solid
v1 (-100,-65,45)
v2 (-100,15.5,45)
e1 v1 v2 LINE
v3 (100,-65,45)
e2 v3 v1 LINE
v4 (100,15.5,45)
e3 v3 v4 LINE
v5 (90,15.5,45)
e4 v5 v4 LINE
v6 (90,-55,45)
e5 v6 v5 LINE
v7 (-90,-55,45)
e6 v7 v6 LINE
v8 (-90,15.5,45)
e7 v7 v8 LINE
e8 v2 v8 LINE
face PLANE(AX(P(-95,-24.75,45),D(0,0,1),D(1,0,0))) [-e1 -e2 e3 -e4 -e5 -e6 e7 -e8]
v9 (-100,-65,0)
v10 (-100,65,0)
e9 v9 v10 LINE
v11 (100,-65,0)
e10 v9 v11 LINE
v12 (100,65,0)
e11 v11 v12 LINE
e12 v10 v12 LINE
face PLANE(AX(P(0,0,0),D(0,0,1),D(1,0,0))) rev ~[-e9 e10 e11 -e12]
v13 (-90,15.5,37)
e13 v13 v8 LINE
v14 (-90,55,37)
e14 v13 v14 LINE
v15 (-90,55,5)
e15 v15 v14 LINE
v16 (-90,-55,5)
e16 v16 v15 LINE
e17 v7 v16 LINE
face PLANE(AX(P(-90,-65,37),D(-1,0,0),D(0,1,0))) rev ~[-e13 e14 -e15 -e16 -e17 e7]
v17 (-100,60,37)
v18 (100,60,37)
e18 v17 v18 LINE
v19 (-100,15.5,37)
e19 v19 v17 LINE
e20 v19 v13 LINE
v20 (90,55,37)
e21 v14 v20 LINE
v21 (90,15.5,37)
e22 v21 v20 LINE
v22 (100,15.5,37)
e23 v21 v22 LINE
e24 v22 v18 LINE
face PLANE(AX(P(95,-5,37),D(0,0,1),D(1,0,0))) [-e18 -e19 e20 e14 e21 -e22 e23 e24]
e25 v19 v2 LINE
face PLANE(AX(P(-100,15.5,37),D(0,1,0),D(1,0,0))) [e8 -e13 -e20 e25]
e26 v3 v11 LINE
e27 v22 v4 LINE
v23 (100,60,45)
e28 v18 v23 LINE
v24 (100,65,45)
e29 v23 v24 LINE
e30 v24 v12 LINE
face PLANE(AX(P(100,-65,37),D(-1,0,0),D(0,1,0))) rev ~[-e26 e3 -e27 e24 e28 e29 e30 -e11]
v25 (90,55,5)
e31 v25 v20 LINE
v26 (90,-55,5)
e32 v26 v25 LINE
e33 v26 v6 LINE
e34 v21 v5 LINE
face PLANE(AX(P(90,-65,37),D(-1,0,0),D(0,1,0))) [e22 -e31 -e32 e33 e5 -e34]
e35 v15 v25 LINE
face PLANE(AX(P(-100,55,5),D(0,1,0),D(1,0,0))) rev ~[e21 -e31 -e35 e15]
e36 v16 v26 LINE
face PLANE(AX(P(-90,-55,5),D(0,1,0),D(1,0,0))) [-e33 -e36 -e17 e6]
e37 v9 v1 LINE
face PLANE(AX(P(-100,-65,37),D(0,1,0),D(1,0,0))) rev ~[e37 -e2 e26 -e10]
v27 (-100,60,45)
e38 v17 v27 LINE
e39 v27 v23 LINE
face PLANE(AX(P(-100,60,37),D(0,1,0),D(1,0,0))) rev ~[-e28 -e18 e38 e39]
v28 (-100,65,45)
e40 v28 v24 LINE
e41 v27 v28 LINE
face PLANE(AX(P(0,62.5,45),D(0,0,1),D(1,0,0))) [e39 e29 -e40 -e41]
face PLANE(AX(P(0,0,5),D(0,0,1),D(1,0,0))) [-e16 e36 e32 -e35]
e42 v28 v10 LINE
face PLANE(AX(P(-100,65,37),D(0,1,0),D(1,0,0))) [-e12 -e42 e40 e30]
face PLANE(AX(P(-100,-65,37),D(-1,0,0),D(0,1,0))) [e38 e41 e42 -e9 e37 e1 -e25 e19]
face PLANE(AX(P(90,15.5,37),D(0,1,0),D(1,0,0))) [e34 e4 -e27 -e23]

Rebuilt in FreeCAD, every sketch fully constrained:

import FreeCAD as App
import Part
import Sketcher

doc = App.newDocument("Part")
params = doc.addObject("Spreadsheet::Sheet", "Params")
for row, (alias, value) in enumerate([
    ("sketch1_width", "200 mm"),
    ("sketch1_height", "130 mm"),
    ("pad1_length", "5 mm"),
    ("sketch2_width", "200 mm"),
    ("sketch2_height", "10 mm"),
    ("pad2_length", "32 mm"),
    ("sketch3_width", "200 mm"),
    ("sketch3_height", "5 mm"),
    ("pad3_length", "8 mm"),
    ("sketch4_width", "10 mm"),
    ("sketch4_height", "120 mm"),
    ("pad4_length", "32 mm"),
    ("sketch5_width", "10 mm"),
    ("sketch5_height", "120 mm"),
    ("pad5_length", "32 mm"),
    ("sketch6_width", "180 mm"),
    ("sketch6_height", "10 mm"),
    ("pad6_length", "40 mm"),
    ("sketch7_width", "10 mm"),
    ("sketch7_height", "80.5 mm"),
    ("pad7_length", "8 mm"),
    ("sketch8_width", "10 mm"),
    ("sketch8_height", "80.5 mm"),
    ("pad8_length", "8 mm"),
], start=1):
    params.set(f"A{row}", alias)
    params.set(f"B{row}", "=" + value)
    params.setAlias(f"B{row}", alias)

body = doc.addObject("PartDesign::Body", "Body")

# Sketch on XY plane
sketch1 = body.newObject("Sketcher::SketchObject", "Sketch")
sketch1.AttachmentSupport = (doc.getObject("XY_Plane"), [""])
sketch1.MapMode = "FlatFace"
sketch1.addGeometry(Part.LineSegment(App.Vector(-100, 65, 0), App.Vector(-100, -65, 0)), False)
sketch1.addGeometry(Part.LineSegment(App.Vector(-100, -65, 0), App.Vector(100, -65, 0)), False)
sketch1.addGeometry(Part.LineSegment(App.Vector(100, -65, 0), App.Vector(100, 65, 0)), False)
sketch1.addGeometry(Part.LineSegment(App.Vector(100, 65, 0), App.Vector(-100, 65, 0)), False)
sketch1.addConstraint(Sketcher.Constraint("Coincident", 0, 2, 1, 1))
sketch1.addConstraint(Sketcher.Constraint("Coincident", 1, 2, 2, 1))
sketch1.addConstraint(Sketcher.Constraint("Coincident", 2, 2, 3, 1))
sketch1.addConstraint(Sketcher.Constraint("Coincident", 3, 2, 0, 1))
sketch1.addConstraint(Sketcher.Constraint("Vertical", 0))
sketch1.addConstraint(Sketcher.Constraint("Horizontal", 1))
sketch1.addConstraint(Sketcher.Constraint("Vertical", 2))
sketch1.addConstraint(Sketcher.Constraint("Horizontal", 3))
sketch1.addConstraint(Sketcher.Constraint("Symmetric", 0, 2, 2, 2, -1, 1))
sketch1.addConstraint(Sketcher.Constraint("DistanceX", 1, 1, 1, 2, 200.0))
sketch1.addConstraint(Sketcher.Constraint("DistanceY", 0, 2, 0, 1, 130.0))
sketch1.setExpression("Constraints[9]", "Params.sketch1_width")
sketch1.setExpression("Constraints[10]", "Params.sketch1_height")
pad1 = body.newObject("PartDesign::Pad", "Pad")
pad1.Profile = sketch1
pad1.setExpression("Length", "Params.pad1_length")

# Sketch on XY plane
sketch2 = body.newObject("Sketcher::SketchObject", "Sketch001")
sketch2.AttachmentSupport = (doc.getObject("XY_Plane"), [""])
sketch2.MapMode = "FlatFace"
sketch2.AttachmentOffset = App.Placement(App.Vector(0, 0, 5), App.Rotation())
sketch2.addGeometry(Part.LineSegment(App.Vector(-100, 65, 0), App.Vector(-100, 55, 0)), False)
sketch2.addGeometry(Part.LineSegment(App.Vector(-100, 55, 0), App.Vector(100, 55, 0)), False)
sketch2.addGeometry(Part.LineSegment(App.Vector(100, 55, 0), App.Vector(100, 65, 0)), False)
sketch2.addGeometry(Part.LineSegment(App.Vector(100, 65, 0), App.Vector(-100, 65, 0)), False)
sketch2.addConstraint(Sketcher.Constraint("Coincident", 0, 2, 1, 1))
sketch2.addConstraint(Sketcher.Constraint("Coincident", 1, 2, 2, 1))
sketch2.addConstraint(Sketcher.Constraint("Coincident", 2, 2, 3, 1))
sketch2.addConstraint(Sketcher.Constraint("Coincident", 3, 2, 0, 1))
sketch2.addConstraint(Sketcher.Constraint("Vertical", 0))
sketch2.addConstraint(Sketcher.Constraint("Horizontal", 1))
sketch2.addConstraint(Sketcher.Constraint("Vertical", 2))
sketch2.addConstraint(Sketcher.Constraint("Horizontal", 3))
sketch2.addConstraint(Sketcher.Constraint("DistanceX", 1, 1, 1, 2, 200.0))
sketch2.addConstraint(Sketcher.Constraint("DistanceY", 0, 2, 0, 1, 10.0))
sketch2.addConstraint(Sketcher.Constraint("DistanceX", 0, 2, -1, 1, 100.0))
sketch2.addConstraint(Sketcher.Constraint("DistanceY", -1, 1, 0, 2, 55.0))
sketch2.setExpression("Constraints[8]", "Params.sketch2_width")
sketch2.setExpression("Constraints[9]", "Params.sketch2_height")
pad2 = body.newObject("PartDesign::Pad", "Pad001")
pad2.Profile = sketch2
pad2.setExpression("Length", "Params.pad2_length")

# Sketch on XY plane
sketch3 = body.newObject("Sketcher::SketchObject", "Sketch002")
sketch3.AttachmentSupport = (doc.getObject("XY_Plane"), [""])
sketch3.MapMode = "FlatFace"
sketch3.AttachmentOffset = App.Placement(App.Vector(0, 0, 37), App.Rotation())
sketch3.addGeometry(Part.LineSegment(App.Vector(-100, 65, 0), App.Vector(-100, 60, 0)), False)
sketch3.addGeometry(Part.LineSegment(App.Vector(-100, 60, 0), App.Vector(100, 60, 0)), False)
sketch3.addGeometry(Part.LineSegment(App.Vector(100, 60, 0), App.Vector(100, 65, 0)), False)
sketch3.addGeometry(Part.LineSegment(App.Vector(100, 65, 0), App.Vector(-100, 65, 0)), False)
sketch3.addConstraint(Sketcher.Constraint("Coincident", 0, 2, 1, 1))
sketch3.addConstraint(Sketcher.Constraint("Coincident", 1, 2, 2, 1))
sketch3.addConstraint(Sketcher.Constraint("Coincident", 2, 2, 3, 1))
sketch3.addConstraint(Sketcher.Constraint("Coincident", 3, 2, 0, 1))
sketch3.addConstraint(Sketcher.Constraint("Vertical", 0))
sketch3.addConstraint(Sketcher.Constraint("Horizontal", 1))
sketch3.addConstraint(Sketcher.Constraint("Vertical", 2))
sketch3.addConstraint(Sketcher.Constraint("Horizontal", 3))
sketch3.addConstraint(Sketcher.Constraint("DistanceX", 1, 1, 1, 2, 200.0))
sketch3.addConstraint(Sketcher.Constraint("DistanceY", 0, 2, 0, 1, 5.0))
sketch3.addConstraint(Sketcher.Constraint("DistanceX", 0, 2, -1, 1, 100.0))
sketch3.addConstraint(Sketcher.Constraint("DistanceY", -1, 1, 0, 2, 60.0))
sketch3.setExpression("Constraints[8]", "Params.sketch3_width")
sketch3.setExpression("Constraints[9]", "Params.sketch3_height")
pad3 = body.newObject("PartDesign::Pad", "Pad002")
pad3.Profile = sketch3
pad3.setExpression("Length", "Params.pad3_length")

# Sketch on XY plane
sketch4 = body.newObject("Sketcher::SketchObject", "Sketch003")
sketch4.AttachmentSupport = (doc.getObject("XY_Plane"), [""])
sketch4.MapMode = "FlatFace"
sketch4.AttachmentOffset = App.Placement(App.Vector(0, 0, 5), App.Rotation())
sketch4.addGeometry(Part.LineSegment(App.Vector(-100, 55, 0), App.Vector(-100, -65, 0)), False)
sketch4.addGeometry(Part.LineSegment(App.Vector(-100, -65, 0), App.Vector(-90, -65, 0)), False)
sketch4.addGeometry(Part.LineSegment(App.Vector(-90, -65, 0), App.Vector(-90, 55, 0)), False)
sketch4.addGeometry(Part.LineSegment(App.Vector(-90, 55, 0), App.Vector(-100, 55, 0)), False)
sketch4.addConstraint(Sketcher.Constraint("Coincident", 0, 2, 1, 1))
sketch4.addConstraint(Sketcher.Constraint("Coincident", 1, 2, 2, 1))
sketch4.addConstraint(Sketcher.Constraint("Coincident", 2, 2, 3, 1))
sketch4.addConstraint(Sketcher.Constraint("Coincident", 3, 2, 0, 1))
sketch4.addConstraint(Sketcher.Constraint("Vertical", 0))
sketch4.addConstraint(Sketcher.Constraint("Horizontal", 1))
sketch4.addConstraint(Sketcher.Constraint("Vertical", 2))
sketch4.addConstraint(Sketcher.Constraint("Horizontal", 3))
sketch4.addConstraint(Sketcher.Constraint("DistanceX", 1, 1, 1, 2, 10.0))
sketch4.addConstraint(Sketcher.Constraint("DistanceY", 0, 2, 0, 1, 120.0))
sketch4.addConstraint(Sketcher.Constraint("DistanceX", 0, 2, -1, 1, 100.0))
sketch4.addConstraint(Sketcher.Constraint("DistanceY", 0, 2, -1, 1, 65.0))
sketch4.setExpression("Constraints[8]", "Params.sketch4_width")
sketch4.setExpression("Constraints[9]", "Params.sketch4_height")
pad4 = body.newObject("PartDesign::Pad", "Pad003")
pad4.Profile = sketch4
pad4.setExpression("Length", "Params.pad4_length")

# Sketch on XY plane
sketch5 = body.newObject("Sketcher::SketchObject", "Sketch004")
sketch5.AttachmentSupport = (doc.getObject("XY_Plane"), [""])
sketch5.MapMode = "FlatFace"
sketch5.AttachmentOffset = App.Placement(App.Vector(0, 0, 5), App.Rotation())
sketch5.addGeometry(Part.LineSegment(App.Vector(90, 55, 0), App.Vector(90, -65, 0)), False)
sketch5.addGeometry(Part.LineSegment(App.Vector(90, -65, 0), App.Vector(100, -65, 0)), False)
sketch5.addGeometry(Part.LineSegment(App.Vector(100, -65, 0), App.Vector(100, 55, 0)), False)
sketch5.addGeometry(Part.LineSegment(App.Vector(100, 55, 0), App.Vector(90, 55, 0)), False)
sketch5.addConstraint(Sketcher.Constraint("Coincident", 0, 2, 1, 1))
sketch5.addConstraint(Sketcher.Constraint("Coincident", 1, 2, 2, 1))
sketch5.addConstraint(Sketcher.Constraint("Coincident", 2, 2, 3, 1))
sketch5.addConstraint(Sketcher.Constraint("Coincident", 3, 2, 0, 1))
sketch5.addConstraint(Sketcher.Constraint("Vertical", 0))
sketch5.addConstraint(Sketcher.Constraint("Horizontal", 1))
sketch5.addConstraint(Sketcher.Constraint("Vertical", 2))
sketch5.addConstraint(Sketcher.Constraint("Horizontal", 3))
sketch5.addConstraint(Sketcher.Constraint("DistanceX", 1, 1, 1, 2, 10.0))
sketch5.addConstraint(Sketcher.Constraint("DistanceY", 0, 2, 0, 1, 120.0))
sketch5.addConstraint(Sketcher.Constraint("DistanceX", -1, 1, 0, 2, 90.0))
sketch5.addConstraint(Sketcher.Constraint("DistanceY", 0, 2, -1, 1, 65.0))
sketch5.setExpression("Constraints[8]", "Params.sketch5_width")
sketch5.setExpression("Constraints[9]", "Params.sketch5_height")
pad5 = body.newObject("PartDesign::Pad", "Pad004")
pad5.Profile = sketch5
pad5.setExpression("Length", "Params.pad5_length")

# Sketch on XY plane
sketch6 = body.newObject("Sketcher::SketchObject", "Sketch005")
sketch6.AttachmentSupport = (doc.getObject("XY_Plane"), [""])
sketch6.MapMode = "FlatFace"
sketch6.AttachmentOffset = App.Placement(App.Vector(0, 0, 5), App.Rotation())
sketch6.addGeometry(Part.LineSegment(App.Vector(-90, -55, 0), App.Vector(-90, -65, 0)), False)
sketch6.addGeometry(Part.LineSegment(App.Vector(-90, -65, 0), App.Vector(90, -65, 0)), False)
sketch6.addGeometry(Part.LineSegment(App.Vector(90, -65, 0), App.Vector(90, -55, 0)), False)
sketch6.addGeometry(Part.LineSegment(App.Vector(90, -55, 0), App.Vector(-90, -55, 0)), False)
sketch6.addConstraint(Sketcher.Constraint("Coincident", 0, 2, 1, 1))
sketch6.addConstraint(Sketcher.Constraint("Coincident", 1, 2, 2, 1))
sketch6.addConstraint(Sketcher.Constraint("Coincident", 2, 2, 3, 1))
sketch6.addConstraint(Sketcher.Constraint("Coincident", 3, 2, 0, 1))
sketch6.addConstraint(Sketcher.Constraint("Vertical", 0))
sketch6.addConstraint(Sketcher.Constraint("Horizontal", 1))
sketch6.addConstraint(Sketcher.Constraint("Vertical", 2))
sketch6.addConstraint(Sketcher.Constraint("Horizontal", 3))
sketch6.addConstraint(Sketcher.Constraint("DistanceX", 1, 1, 1, 2, 180.0))
sketch6.addConstraint(Sketcher.Constraint("DistanceY", 0, 2, 0, 1, 10.0))
sketch6.addConstraint(Sketcher.Constraint("DistanceX", 0, 2, -1, 1, 90.0))
sketch6.addConstraint(Sketcher.Constraint("DistanceY", 0, 2, -1, 1, 65.0))
sketch6.setExpression("Constraints[8]", "Params.sketch6_width")
sketch6.setExpression("Constraints[9]", "Params.sketch6_height")
pad6 = body.newObject("PartDesign::Pad", "Pad005")
pad6.Profile = sketch6
pad6.setExpression("Length", "Params.pad6_length")

# Sketch on XY plane
sketch7 = body.newObject("Sketcher::SketchObject", "Sketch006")
sketch7.AttachmentSupport = (doc.getObject("XY_Plane"), [""])
sketch7.MapMode = "FlatFace"
sketch7.AttachmentOffset = App.Placement(App.Vector(0, 0, 37), App.Rotation())
sketch7.addGeometry(Part.LineSegment(App.Vector(90, 16, 0), App.Vector(90, -65, 0)), False)
sketch7.addGeometry(Part.LineSegment(App.Vector(90, -65, 0), App.Vector(100, -65, 0)), False)
sketch7.addGeometry(Part.LineSegment(App.Vector(100, -65, 0), App.Vector(100, 16, 0)), False)
sketch7.addGeometry(Part.LineSegment(App.Vector(100, 16, 0), App.Vector(90, 16, 0)), False)
sketch7.addConstraint(Sketcher.Constraint("Coincident", 0, 2, 1, 1))
sketch7.addConstraint(Sketcher.Constraint("Coincident", 1, 2, 2, 1))
sketch7.addConstraint(Sketcher.Constraint("Coincident", 2, 2, 3, 1))
sketch7.addConstraint(Sketcher.Constraint("Coincident", 3, 2, 0, 1))
sketch7.addConstraint(Sketcher.Constraint("Vertical", 0))
sketch7.addConstraint(Sketcher.Constraint("Horizontal", 1))
sketch7.addConstraint(Sketcher.Constraint("Vertical", 2))
sketch7.addConstraint(Sketcher.Constraint("Horizontal", 3))
sketch7.addConstraint(Sketcher.Constraint("DistanceX", 1, 1, 1, 2, 10.0))
sketch7.addConstraint(Sketcher.Constraint("DistanceY", 0, 2, 0, 1, 80.5))
sketch7.addConstraint(Sketcher.Constraint("DistanceX", -1, 1, 0, 2, 90.0))
sketch7.addConstraint(Sketcher.Constraint("DistanceY", 0, 2, -1, 1, 65.0))
sketch7.setExpression("Constraints[8]", "Params.sketch7_width")
sketch7.setExpression("Constraints[9]", "Params.sketch7_height")
pad7 = body.newObject("PartDesign::Pad", "Pad006")
pad7.Profile = sketch7
pad7.setExpression("Length", "Params.pad7_length")

# Sketch on XY plane
sketch8 = body.newObject("Sketcher::SketchObject", "Sketch007")
sketch8.AttachmentSupport = (doc.getObject("XY_Plane"), [""])
sketch8.MapMode = "FlatFace"
sketch8.AttachmentOffset = App.Placement(App.Vector(0, 0, 37), App.Rotation())
sketch8.addGeometry(Part.LineSegment(App.Vector(-100, 16, 0), App.Vector(-100, -65, 0)), False)
sketch8.addGeometry(Part.LineSegment(App.Vector(-100, -65, 0), App.Vector(-90, -65, 0)), False)
sketch8.addGeometry(Part.LineSegment(App.Vector(-90, -65, 0), App.Vector(-90, 16, 0)), False)
sketch8.addGeometry(Part.LineSegment(App.Vector(-90, 16, 0), App.Vector(-100, 16, 0)), False)
sketch8.addConstraint(Sketcher.Constraint("Coincident", 0, 2, 1, 1))
sketch8.addConstraint(Sketcher.Constraint("Coincident", 1, 2, 2, 1))
sketch8.addConstraint(Sketcher.Constraint("Coincident", 2, 2, 3, 1))
sketch8.addConstraint(Sketcher.Constraint("Coincident", 3, 2, 0, 1))
sketch8.addConstraint(Sketcher.Constraint("Vertical", 0))
sketch8.addConstraint(Sketcher.Constraint("Horizontal", 1))
sketch8.addConstraint(Sketcher.Constraint("Vertical", 2))
sketch8.addConstraint(Sketcher.Constraint("Horizontal", 3))
sketch8.addConstraint(Sketcher.Constraint("DistanceX", 1, 1, 1, 2, 10.0))
sketch8.addConstraint(Sketcher.Constraint("DistanceY", 0, 2, 0, 1, 80.5))
sketch8.addConstraint(Sketcher.Constraint("DistanceX", 0, 2, -1, 1, 100.0))
sketch8.addConstraint(Sketcher.Constraint("DistanceY", 0, 2, -1, 1, 65.0))
sketch8.setExpression("Constraints[8]", "Params.sketch8_width")
sketch8.setExpression("Constraints[9]", "Params.sketch8_height")
pad8 = body.newObject("PartDesign::Pad", "Pad007")
pad8.Profile = sketch8
pad8.setExpression("Length", "Params.pad8_length")

doc.recompute()
